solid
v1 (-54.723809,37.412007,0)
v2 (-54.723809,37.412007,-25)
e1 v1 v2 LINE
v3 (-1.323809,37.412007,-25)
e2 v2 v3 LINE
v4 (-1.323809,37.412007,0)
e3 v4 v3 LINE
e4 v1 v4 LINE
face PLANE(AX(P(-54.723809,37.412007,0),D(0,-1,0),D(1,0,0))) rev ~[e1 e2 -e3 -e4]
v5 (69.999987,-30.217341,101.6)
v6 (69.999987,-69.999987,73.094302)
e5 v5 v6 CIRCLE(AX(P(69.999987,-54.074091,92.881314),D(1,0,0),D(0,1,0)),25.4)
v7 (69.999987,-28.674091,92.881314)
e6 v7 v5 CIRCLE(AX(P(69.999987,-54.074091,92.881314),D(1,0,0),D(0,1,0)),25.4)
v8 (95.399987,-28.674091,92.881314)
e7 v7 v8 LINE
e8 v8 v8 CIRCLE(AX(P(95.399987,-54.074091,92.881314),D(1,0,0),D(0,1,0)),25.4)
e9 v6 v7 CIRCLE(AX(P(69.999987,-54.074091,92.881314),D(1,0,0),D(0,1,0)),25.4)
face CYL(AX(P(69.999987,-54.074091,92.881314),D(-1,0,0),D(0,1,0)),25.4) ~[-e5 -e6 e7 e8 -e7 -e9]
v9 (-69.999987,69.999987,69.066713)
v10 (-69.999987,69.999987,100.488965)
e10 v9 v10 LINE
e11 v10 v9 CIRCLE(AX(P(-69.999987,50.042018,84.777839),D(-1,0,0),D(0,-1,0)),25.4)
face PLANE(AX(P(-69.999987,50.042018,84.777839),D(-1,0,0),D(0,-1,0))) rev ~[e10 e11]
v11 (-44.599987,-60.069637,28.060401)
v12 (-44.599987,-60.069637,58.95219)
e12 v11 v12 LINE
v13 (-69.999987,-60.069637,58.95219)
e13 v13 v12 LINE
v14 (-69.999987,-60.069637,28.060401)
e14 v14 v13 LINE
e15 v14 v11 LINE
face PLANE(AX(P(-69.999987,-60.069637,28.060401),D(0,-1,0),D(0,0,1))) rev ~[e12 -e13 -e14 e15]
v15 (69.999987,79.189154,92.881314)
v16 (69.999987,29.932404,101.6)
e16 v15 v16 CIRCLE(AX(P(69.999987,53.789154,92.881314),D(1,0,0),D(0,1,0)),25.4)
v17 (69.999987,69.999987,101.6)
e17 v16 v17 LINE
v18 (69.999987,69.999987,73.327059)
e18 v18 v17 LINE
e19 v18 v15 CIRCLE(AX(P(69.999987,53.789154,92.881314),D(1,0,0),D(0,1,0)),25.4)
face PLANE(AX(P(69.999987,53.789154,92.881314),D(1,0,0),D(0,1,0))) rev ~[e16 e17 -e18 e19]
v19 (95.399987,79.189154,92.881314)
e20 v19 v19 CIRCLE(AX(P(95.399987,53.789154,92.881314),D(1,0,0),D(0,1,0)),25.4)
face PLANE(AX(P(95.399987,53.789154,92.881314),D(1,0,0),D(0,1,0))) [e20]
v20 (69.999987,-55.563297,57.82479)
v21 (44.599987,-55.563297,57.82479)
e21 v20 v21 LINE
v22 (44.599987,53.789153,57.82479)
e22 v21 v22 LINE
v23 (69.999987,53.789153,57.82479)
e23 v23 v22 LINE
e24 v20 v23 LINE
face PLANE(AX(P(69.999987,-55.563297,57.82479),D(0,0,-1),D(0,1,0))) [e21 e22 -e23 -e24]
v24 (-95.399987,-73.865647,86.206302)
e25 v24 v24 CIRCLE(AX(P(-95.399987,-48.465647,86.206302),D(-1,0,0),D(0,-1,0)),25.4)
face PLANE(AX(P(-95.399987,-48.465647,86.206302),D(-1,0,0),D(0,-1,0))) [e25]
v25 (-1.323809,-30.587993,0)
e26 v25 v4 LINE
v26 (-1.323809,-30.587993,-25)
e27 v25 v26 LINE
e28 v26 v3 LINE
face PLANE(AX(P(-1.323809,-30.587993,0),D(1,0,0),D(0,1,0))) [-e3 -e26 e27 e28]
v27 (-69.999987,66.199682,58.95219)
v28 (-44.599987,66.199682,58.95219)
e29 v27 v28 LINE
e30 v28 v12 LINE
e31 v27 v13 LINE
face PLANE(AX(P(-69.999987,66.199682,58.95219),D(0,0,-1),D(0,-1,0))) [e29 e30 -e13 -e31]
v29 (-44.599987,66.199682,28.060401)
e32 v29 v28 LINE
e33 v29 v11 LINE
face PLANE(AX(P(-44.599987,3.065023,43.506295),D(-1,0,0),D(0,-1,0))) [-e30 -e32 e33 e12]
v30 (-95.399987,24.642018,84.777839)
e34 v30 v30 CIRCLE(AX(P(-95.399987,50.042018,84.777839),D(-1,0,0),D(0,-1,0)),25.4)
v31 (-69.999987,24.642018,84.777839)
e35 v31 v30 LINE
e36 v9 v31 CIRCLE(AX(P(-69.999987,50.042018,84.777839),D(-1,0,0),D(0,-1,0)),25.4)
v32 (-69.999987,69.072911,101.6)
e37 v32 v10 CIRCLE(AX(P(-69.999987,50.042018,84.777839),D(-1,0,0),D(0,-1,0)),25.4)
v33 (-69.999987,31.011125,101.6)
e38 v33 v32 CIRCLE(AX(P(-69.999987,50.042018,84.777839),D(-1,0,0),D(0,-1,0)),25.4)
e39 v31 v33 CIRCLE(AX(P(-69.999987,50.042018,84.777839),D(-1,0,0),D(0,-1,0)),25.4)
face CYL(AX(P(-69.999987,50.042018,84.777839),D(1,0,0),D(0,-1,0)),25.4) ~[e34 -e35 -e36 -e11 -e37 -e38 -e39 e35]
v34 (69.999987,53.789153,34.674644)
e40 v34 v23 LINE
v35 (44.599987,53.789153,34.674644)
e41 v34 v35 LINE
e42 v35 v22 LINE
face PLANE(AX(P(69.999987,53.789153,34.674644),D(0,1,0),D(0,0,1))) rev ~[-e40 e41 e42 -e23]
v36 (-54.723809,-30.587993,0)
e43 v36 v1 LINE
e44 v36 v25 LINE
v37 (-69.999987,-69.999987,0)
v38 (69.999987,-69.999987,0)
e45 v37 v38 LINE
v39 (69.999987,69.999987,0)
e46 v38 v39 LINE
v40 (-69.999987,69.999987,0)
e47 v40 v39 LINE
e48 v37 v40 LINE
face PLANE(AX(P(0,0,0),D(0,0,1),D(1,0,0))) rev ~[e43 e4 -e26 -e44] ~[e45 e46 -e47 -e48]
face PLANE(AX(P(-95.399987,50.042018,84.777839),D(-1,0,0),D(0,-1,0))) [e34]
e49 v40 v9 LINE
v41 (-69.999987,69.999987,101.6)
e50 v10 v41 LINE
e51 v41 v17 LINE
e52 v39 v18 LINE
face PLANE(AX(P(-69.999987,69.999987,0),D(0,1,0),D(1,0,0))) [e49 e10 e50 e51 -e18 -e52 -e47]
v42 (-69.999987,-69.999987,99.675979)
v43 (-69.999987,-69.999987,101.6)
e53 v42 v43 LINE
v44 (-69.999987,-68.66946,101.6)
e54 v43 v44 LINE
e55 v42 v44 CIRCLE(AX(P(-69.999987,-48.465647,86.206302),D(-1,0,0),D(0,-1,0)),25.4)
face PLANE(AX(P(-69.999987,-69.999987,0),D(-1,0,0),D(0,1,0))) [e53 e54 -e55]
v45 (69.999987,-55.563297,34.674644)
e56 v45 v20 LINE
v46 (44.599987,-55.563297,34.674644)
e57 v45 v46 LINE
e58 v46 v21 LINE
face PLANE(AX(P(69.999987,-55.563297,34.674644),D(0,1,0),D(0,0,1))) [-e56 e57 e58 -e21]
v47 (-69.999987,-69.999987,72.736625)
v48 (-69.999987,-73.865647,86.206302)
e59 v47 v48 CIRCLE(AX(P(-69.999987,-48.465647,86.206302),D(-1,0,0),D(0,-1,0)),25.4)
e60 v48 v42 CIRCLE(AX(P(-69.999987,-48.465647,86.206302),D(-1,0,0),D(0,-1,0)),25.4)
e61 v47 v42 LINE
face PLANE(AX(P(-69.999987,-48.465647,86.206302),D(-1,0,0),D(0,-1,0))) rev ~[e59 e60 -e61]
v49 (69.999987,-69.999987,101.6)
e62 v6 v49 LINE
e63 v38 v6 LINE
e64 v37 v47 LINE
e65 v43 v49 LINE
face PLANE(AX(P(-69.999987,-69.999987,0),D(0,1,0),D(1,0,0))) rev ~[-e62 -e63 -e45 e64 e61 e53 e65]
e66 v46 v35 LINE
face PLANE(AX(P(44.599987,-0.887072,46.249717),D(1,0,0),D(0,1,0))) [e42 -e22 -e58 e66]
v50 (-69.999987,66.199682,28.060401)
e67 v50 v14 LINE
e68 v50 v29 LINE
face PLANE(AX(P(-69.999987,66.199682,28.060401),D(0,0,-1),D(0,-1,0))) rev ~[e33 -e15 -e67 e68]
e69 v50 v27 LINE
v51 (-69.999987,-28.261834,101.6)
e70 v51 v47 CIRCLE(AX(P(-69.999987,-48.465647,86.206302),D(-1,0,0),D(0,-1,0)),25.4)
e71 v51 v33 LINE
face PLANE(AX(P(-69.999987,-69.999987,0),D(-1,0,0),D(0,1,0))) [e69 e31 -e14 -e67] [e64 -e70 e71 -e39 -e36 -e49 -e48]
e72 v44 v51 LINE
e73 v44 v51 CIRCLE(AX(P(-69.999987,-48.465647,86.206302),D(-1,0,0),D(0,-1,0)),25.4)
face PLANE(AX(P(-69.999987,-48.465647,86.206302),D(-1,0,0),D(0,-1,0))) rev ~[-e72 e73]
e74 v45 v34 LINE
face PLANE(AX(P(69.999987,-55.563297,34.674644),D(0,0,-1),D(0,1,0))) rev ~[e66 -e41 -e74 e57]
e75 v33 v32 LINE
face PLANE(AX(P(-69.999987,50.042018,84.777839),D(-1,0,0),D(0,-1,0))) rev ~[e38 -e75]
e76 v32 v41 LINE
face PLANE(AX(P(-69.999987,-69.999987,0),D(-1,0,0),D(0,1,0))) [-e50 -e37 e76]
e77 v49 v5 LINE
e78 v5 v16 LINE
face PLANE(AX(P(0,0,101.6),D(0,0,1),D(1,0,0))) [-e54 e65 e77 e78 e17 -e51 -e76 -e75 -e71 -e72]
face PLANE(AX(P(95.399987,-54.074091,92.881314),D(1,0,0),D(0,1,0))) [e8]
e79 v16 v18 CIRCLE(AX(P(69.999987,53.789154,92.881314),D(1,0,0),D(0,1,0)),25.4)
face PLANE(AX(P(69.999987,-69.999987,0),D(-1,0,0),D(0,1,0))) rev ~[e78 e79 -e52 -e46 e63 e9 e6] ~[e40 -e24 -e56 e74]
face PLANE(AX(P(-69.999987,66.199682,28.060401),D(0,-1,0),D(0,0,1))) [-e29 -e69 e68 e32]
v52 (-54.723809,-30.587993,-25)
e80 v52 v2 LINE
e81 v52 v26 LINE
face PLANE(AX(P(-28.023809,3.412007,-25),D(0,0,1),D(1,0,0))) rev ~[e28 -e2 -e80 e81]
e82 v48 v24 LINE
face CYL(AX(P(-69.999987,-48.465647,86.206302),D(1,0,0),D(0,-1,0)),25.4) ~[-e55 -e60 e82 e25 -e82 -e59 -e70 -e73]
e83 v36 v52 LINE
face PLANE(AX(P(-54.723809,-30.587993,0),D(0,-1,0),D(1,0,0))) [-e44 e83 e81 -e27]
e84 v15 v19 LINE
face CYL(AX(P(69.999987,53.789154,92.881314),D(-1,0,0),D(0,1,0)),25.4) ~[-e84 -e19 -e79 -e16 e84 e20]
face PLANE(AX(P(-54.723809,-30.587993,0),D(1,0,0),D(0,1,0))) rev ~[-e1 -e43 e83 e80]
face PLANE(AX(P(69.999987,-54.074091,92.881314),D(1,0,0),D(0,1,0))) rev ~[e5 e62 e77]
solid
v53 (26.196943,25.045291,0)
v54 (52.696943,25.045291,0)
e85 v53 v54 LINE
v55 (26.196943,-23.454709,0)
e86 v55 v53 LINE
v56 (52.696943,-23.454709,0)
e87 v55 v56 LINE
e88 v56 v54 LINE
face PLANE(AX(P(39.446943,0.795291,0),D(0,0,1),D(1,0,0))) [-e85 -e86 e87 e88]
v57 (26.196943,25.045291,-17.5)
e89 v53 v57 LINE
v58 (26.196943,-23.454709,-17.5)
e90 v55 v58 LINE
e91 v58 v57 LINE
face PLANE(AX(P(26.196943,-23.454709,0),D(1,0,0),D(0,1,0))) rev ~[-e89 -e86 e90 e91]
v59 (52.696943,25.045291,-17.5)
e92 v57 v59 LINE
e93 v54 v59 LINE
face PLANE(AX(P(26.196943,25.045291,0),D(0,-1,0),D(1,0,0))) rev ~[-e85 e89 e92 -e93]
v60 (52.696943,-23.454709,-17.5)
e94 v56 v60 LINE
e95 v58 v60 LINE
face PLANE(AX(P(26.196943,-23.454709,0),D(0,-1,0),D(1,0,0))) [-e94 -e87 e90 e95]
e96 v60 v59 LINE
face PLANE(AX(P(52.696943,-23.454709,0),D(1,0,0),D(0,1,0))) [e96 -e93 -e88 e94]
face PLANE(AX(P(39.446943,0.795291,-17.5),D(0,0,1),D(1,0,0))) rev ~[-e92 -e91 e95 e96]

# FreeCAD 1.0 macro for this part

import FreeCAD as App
import Part
import Sketcher

V = App.Vector
Q = App.Units.Quantity

doc = App.newDocument("Part")
body = doc.addObject("PartDesign::Body", "Body")

# Sketch on XY plane
sketch1 = body.newObject("Sketcher::SketchObject", "Sketch")
sketch1.AttachmentSupport = (doc.getObject("XY_Plane"), [""])
sketch1.MapMode = "FlatFace"
sketch1.addGeometry([
    Part.LineSegment(V(-70, 70, 0), V(-70, -70, 0)),
    Part.LineSegment(V(-70, -70, 0), V(70, -70, 0)),
    Part.LineSegment(V(70, -70, 0), V(70, 70, 0)),
    Part.LineSegment(V(70, 70, 0), V(-70, 70, 0)),
], False)
sketch1.addConstraint([
    Sketcher.Constraint("Coincident", 0, 2, 1, 1),
    Sketcher.Constraint("Coincident", 1, 2, 2, 1),
    Sketcher.Constraint("Coincident", 2, 2, 3, 1),
    Sketcher.Constraint("Coincident", 3, 2, 0, 1),
    Sketcher.Constraint("Vertical", 0),
    Sketcher.Constraint("Horizontal", 1),
    Sketcher.Constraint("Vertical", 2),
    Sketcher.Constraint("Horizontal", 3),
    Sketcher.Constraint("Symmetric", 0, 2, 2, 2, -1, 1),
    Sketcher.Constraint("Equal", 3, 0),
    Sketcher.Constraint("DistanceX", 1, 1, 1, 2, Q("139.999974 mm")),
])
pad1 = body.newObject("PartDesign::Pad", "Pad")
pad1.Profile = sketch1
pad1.Length = 101.6

# Sketch on XY plane
sketch2 = body.newObject("Sketcher::SketchObject", "Sketch001")
sketch2.AttachmentSupport = (doc.getObject("XY_Plane"), [""])
sketch2.MapMode = "FlatFace"
sketch2.addGeometry([
    Part.LineSegment(V(-55, 37, 0), V(-55, -31, 0)),
    Part.LineSegment(V(-55, -31, 0), V(-1, -31, 0)),
    Part.LineSegment(V(-1, -31, 0), V(-1, 37, 0)),
    Part.LineSegment(V(-1, 37, 0), V(-55, 37, 0)),
], False)
sketch2.addConstraint([
    Sketcher.Constraint("Coincident", 0, 2, 1, 1),
    Sketcher.Constraint("Coincident", 1, 2, 2, 1),
    Sketcher.Constraint("Coincident", 2, 2, 3, 1),
    Sketcher.Constraint("Coincident", 3, 2, 0, 1),
    Sketcher.Constraint("Vertical", 0),
    Sketcher.Constraint("Horizontal", 1),
    Sketcher.Constraint("Vertical", 2),
    Sketcher.Constraint("Horizontal", 3),
    Sketcher.Constraint("DistanceY", 0, 2, 0, 1, Q("68 mm")),
    Sketcher.Constraint("DistanceX", 1, 1, 1, 2, Q("53.4 mm")),
    Sketcher.Constraint("DistanceX", 0, 2, -1, 1, Q("54.723809 mm")),
    Sketcher.Constraint("DistanceY", 0, 2, -1, 1, Q("30.587993 mm")),
])
pad2 = body.newObject("PartDesign::Pad", "Pad001")
pad2.Profile = sketch2
pad2.Length = 25
pad2.Reversed = True

# Sketch on YZ plane
sketch3 = body.newObject("Sketcher::SketchObject", "Sketch002")
sketch3.AttachmentSupport = (doc.getObject("YZ_Plane"), [""])
sketch3.MapMode = "FlatFace"
sketch3.AttachmentOffset = App.Placement(V(0, 0, 69.999987), App.Rotation())
sketch3.addGeometry([
    Part.LineSegment(V(-56, 58, 0), V(-56, 35, 0)),
    Part.LineSegment(V(-56, 35, 0), V(54, 35, 0)),
    Part.LineSegment(V(54, 35, 0), V(54, 58, 0)),
    Part.LineSegment(V(54, 58, 0), V(-56, 58, 0)),
], False)
sketch3.addConstraint([
    Sketcher.Constraint("Coincident", 0, 2, 1, 1),
    Sketcher.Constraint("Coincident", 1, 2, 2, 1),
    Sketcher.Constraint("Coincident", 2, 2, 3, 1),
    Sketcher.Constraint("Coincident", 3, 2, 0, 1),
    Sketcher.Constraint("Vertical", 0),
    Sketcher.Constraint("Horizontal", 1),
    Sketcher.Constraint("Vertical", 2),
    Sketcher.Constraint("Horizontal", 3),
    Sketcher.Constraint("DistanceX", 1, 1, 1, 2, Q("109.352451 mm")),
    Sketcher.Constraint("DistanceY", 0, 2, 0, 1, Q("23.150146 mm")),
    Sketcher.Constraint("DistanceY", -1, 1, 2, 2, Q("57.82479 mm")),
    Sketcher.Constraint("DistanceX", 0, 2, -1, 1, Q("55.563297 mm")),
])
pocket1 = body.newObject("PartDesign::Pocket", "Pocket")
pocket1.Profile = sketch3
pocket1.Length = 25.4

# Sketch on YZ plane
sketch4 = body.newObject("Sketcher::SketchObject", "Sketch003")
sketch4.AttachmentSupport = (doc.getObject("YZ_Plane"), [""])
sketch4.MapMode = "FlatFace"
sketch4.AttachmentOffset = App.Placement(V(0, 0, -69.999987), App.Rotation())
sketch4.addGeometry([
    Part.LineSegment(V(66, 59, 0), V(66, 28, 0)),
    Part.LineSegment(V(66, 28, 0), V(-60, 28, 0)),
    Part.LineSegment(V(-60, 28, 0), V(-60, 59, 0)),
    Part.LineSegment(V(-60, 59, 0), V(66, 59, 0)),
], False)
sketch4.addConstraint([
    Sketcher.Constraint("Coincident", 0, 2, 1, 1),
    Sketcher.Constraint("Coincident", 1, 2, 2, 1),
    Sketcher.Constraint("Coincident", 2, 2, 3, 1),
    Sketcher.Constraint("Coincident", 3, 2, 0, 1),
    Sketcher.Constraint("Vertical", 0),
    Sketcher.Constraint("Horizontal", 1),
    Sketcher.Constraint("Vertical", 2),
    Sketcher.Constraint("Horizontal", 3),
    Sketcher.Constraint("DistanceX", 1, 2, 1, 1, Q("126.269319 mm")),
    Sketcher.Constraint("DistanceY", 0, 2, 0, 1, Q("30.891789 mm")),
    Sketcher.Constraint("DistanceY", -1, 1, 0, 2, Q("28.060401 mm")),
    Sketcher.Constraint("DistanceX", -1, 1, 0, 2, Q("66.199682 mm")),
])
pocket2 = body.newObject("PartDesign::Pocket", "Pocket001")
pocket2.Profile = sketch4
pocket2.Length = 25.4
pocket2.Reversed = True

# Sketch on YZ plane
sketch5 = body.newObject("Sketcher::SketchObject", "Sketch004")
sketch5.AttachmentSupport = (doc.getObject("YZ_Plane"), [""])
sketch5.MapMode = "FlatFace"
sketch5.AttachmentOffset = App.Placement(V(0, 0, 69.999987), App.Rotation())
sketch5.addGeometry([
    Part.Circle(V(-54, 93, 0), V(0, 0, 1), 25),
    Part.Circle(V(54, 93, 0), V(0, 0, 1), 25),
], False)
sketch5.addConstraint([
    Sketcher.Constraint("Equal", 0, 1),
    Sketcher.Constraint("Horizontal", 0, 3, 1, 3),
    Sketcher.Constraint("Diameter", 0, Q("50.8 mm")),
    Sketcher.Constraint("DistanceX", 0, 3, -1, 1, Q("54.074091 mm")),
    Sketcher.Constraint("DistanceY", -1, 1, 0, 3, Q("92.881314 mm")),
    Sketcher.Constraint("DistanceX", -1, 1, 1, 3, Q("53.789154 mm")),
])
pad3 = body.newObject("PartDesign::Pad", "Pad002")
pad3.Profile = sketch5
pad3.Length = 25.4

# Sketch on YZ plane
sketch6 = body.newObject("Sketcher::SketchObject", "Sketch005")
sketch6.AttachmentSupport = (doc.getObject("YZ_Plane"), [""])
sketch6.MapMode = "FlatFace"
sketch6.AttachmentOffset = App.Placement(V(0, 0, -69.999987), App.Rotation())
sketch6.addGeometry([
    Part.Circle(V(50, 85, 0), V(0, 0, 1), 25),
    Part.Circle(V(-48, 86, 0), V(0, 0, 1), 25),
], False)
sketch6.addConstraint([
    Sketcher.Constraint("Equal", 0, 1),
    Sketcher.Constraint("Diameter", 0, Q("50.8 mm")),
    Sketcher.Constraint("DistanceY", -1, 1, 1, 3, Q("86.206302 mm")),
    Sketcher.Constraint("DistanceY", -1, 1, 0, 3, Q("84.777839 mm")),
    Sketcher.Constraint("DistanceX", -1, 1, 0, 3, Q("50.042018 mm")),
    Sketcher.Constraint("DistanceX", 1, 3, -1, 1, Q("48.465647 mm")),
])
pad4 = body.newObject("PartDesign::Pad", "Pad003")
pad4.Profile = sketch6
pad4.Length = 25.4
pad4.Reversed = True
body2 = doc.addObject("PartDesign::Body", "Body001")

# Sketch on XY plane
sketch7 = body2.newObject("Sketcher::SketchObject", "Sketch006")
sketch7.AttachmentSupport = (doc.getObject("XY_Plane001"), [""])
sketch7.MapMode = "FlatFace"
sketch7.addGeometry([
    Part.LineSegment(V(26, 25, 0), V(26, -23, 0)),
    Part.LineSegment(V(26, -23, 0), V(53, -23, 0)),
    Part.LineSegment(V(53, -23, 0), V(53, 25, 0)),
    Part.LineSegment(V(53, 25, 0), V(26, 25, 0)),
], False)
sketch7.addConstraint([
    Sketcher.Constraint("Coincident", 0, 2, 1, 1),
    Sketcher.Constraint("Coincident", 1, 2, 2, 1),
    Sketcher.Constraint("Coincident", 2, 2, 3, 1),
    Sketcher.Constraint("Coincident", 3, 2, 0, 1),
    Sketcher.Constraint("Vertical", 0),
    Sketcher.Constraint("Horizontal", 1),
    Sketcher.Constraint("Vertical", 2),
    Sketcher.Constraint("Horizontal", 3),
    Sketcher.Constraint("DistanceX", 1, 1, 1, 2, Q("26.5 mm")),
    Sketcher.Constraint("DistanceY", 0, 2, 0, 1, Q("48.5 mm")),
    Sketcher.Constraint("DistanceY", 0, 2, -1, 1, Q("23.454709 mm")),
    Sketcher.Constraint("DistanceX", -1, 1, 0, 2, Q("26.196943 mm")),
])
pad5 = body2.newObject("PartDesign::Pad", "Pad004")
pad5.Profile = sketch7
pad5.Length = 17.5
pad5.Reversed = True

doc.recompute()
